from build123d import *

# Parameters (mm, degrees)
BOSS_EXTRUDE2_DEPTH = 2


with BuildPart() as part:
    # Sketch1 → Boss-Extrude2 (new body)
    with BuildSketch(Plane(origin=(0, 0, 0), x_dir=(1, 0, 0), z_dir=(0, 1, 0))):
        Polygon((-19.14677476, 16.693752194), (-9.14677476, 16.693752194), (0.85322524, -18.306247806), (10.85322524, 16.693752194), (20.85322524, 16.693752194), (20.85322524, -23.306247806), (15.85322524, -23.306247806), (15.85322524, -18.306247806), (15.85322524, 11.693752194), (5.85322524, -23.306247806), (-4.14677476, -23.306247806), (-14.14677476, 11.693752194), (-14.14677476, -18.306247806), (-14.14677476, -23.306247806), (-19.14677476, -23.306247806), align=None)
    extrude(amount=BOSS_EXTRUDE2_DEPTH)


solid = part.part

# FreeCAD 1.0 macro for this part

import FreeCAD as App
import Part
import Sketcher
from FreeCAD import Vector


def add_polygon(sketch, points):
    """Adds a closed chain of lines whose ends are joined by coincident constraints."""
    first, n = sketch.GeometryCount, len(points)
    for a, b in zip(points, points[1:] + points[:1]):
        sketch.addGeometry(Part.LineSegment(App.Vector(*a, 0), App.Vector(*b, 0)), False)
    for i in range(n):
        sketch.addConstraint(Sketcher.Constraint("Coincident", first + i, 2, first + (i + 1) % n, 1))

doc = App.newDocument("Part")
body = doc.addObject("PartDesign::Body", "Body")

# Sketch on XZ plane
sketch1 = doc.addObject("Sketcher::SketchObject", "Sketch")
body.addObject(sketch1)
sketch1.AttachmentSupport = (doc.XZ_Plane, [""])
sketch1.MapMode = "FlatFace"
add_polygon(sketch1, [(-9, -17), (-19, -17), (-19, 23), (-14, 23), (-14, -12), (-4, 23), (6, 23), (16, -12), (16, 23), (21, 23), (21, -17), (11, -17), (1, 18)])  # lines 0-12
sketch1.addConstraint([
    Sketcher.Constraint("Horizontal", 0),
    Sketcher.Constraint("Vertical", 1),
    Sketcher.Constraint("Horizontal", 2),
    Sketcher.Constraint("Vertical", 3),
    Sketcher.Constraint("Horizontal", 5),
    Sketcher.Constraint("Vertical", 7),
    Sketcher.Constraint("Horizontal", 8),
    Sketcher.Constraint("Vertical", 9),
    Sketcher.Constraint("Horizontal", 10),
    Sketcher.Constraint("Parallel", 6, 11),
    Sketcher.Constraint("Parallel", 4, 12),
    Sketcher.Constraint("Horizontal", 2, 2, 4, 2),
    Sketcher.Constraint("Horizontal", 3, 2, 6, 2),
    Sketcher.Constraint("Horizontal", 5, 2, 7, 2),
    Sketcher.Constraint("Horizontal", 0, 2, 9, 2),
    Sketcher.Constraint("Equal", 0, 5),
    Sketcher.Constraint("Equal", 2, 8),
    Sketcher.Constraint("Equal", 5, 10),
    Sketcher.Constraint("Equal", 4, 6),
    Sketcher.Constraint("Equal", 6, 11),
    Sketcher.Constraint("DistanceX", 0, 2, 0, 1, 10.0),
    Sketcher.Constraint("DistanceY", 1, 1, 1, 2, 40.0),
    Sketcher.Constraint("DistanceY", 3, 2, 3, 1, 35.0),
    Sketcher.Constraint("DistanceX", 2, 2, 4, 2, 10.0),
    Sketcher.Constraint("DistanceX", 0, 2, -1, 1, 19.146775),
    Sketcher.Constraint("DistanceY", 0, 2, -1, 1, 16.693752),
])
pad1 = doc.addObject("PartDesign::Pad", "Pad")
body.addObject(pad1)
pad1.Profile = sketch1
pad1.Length = 2
pad1.Reversed = True

doc.recompute()
